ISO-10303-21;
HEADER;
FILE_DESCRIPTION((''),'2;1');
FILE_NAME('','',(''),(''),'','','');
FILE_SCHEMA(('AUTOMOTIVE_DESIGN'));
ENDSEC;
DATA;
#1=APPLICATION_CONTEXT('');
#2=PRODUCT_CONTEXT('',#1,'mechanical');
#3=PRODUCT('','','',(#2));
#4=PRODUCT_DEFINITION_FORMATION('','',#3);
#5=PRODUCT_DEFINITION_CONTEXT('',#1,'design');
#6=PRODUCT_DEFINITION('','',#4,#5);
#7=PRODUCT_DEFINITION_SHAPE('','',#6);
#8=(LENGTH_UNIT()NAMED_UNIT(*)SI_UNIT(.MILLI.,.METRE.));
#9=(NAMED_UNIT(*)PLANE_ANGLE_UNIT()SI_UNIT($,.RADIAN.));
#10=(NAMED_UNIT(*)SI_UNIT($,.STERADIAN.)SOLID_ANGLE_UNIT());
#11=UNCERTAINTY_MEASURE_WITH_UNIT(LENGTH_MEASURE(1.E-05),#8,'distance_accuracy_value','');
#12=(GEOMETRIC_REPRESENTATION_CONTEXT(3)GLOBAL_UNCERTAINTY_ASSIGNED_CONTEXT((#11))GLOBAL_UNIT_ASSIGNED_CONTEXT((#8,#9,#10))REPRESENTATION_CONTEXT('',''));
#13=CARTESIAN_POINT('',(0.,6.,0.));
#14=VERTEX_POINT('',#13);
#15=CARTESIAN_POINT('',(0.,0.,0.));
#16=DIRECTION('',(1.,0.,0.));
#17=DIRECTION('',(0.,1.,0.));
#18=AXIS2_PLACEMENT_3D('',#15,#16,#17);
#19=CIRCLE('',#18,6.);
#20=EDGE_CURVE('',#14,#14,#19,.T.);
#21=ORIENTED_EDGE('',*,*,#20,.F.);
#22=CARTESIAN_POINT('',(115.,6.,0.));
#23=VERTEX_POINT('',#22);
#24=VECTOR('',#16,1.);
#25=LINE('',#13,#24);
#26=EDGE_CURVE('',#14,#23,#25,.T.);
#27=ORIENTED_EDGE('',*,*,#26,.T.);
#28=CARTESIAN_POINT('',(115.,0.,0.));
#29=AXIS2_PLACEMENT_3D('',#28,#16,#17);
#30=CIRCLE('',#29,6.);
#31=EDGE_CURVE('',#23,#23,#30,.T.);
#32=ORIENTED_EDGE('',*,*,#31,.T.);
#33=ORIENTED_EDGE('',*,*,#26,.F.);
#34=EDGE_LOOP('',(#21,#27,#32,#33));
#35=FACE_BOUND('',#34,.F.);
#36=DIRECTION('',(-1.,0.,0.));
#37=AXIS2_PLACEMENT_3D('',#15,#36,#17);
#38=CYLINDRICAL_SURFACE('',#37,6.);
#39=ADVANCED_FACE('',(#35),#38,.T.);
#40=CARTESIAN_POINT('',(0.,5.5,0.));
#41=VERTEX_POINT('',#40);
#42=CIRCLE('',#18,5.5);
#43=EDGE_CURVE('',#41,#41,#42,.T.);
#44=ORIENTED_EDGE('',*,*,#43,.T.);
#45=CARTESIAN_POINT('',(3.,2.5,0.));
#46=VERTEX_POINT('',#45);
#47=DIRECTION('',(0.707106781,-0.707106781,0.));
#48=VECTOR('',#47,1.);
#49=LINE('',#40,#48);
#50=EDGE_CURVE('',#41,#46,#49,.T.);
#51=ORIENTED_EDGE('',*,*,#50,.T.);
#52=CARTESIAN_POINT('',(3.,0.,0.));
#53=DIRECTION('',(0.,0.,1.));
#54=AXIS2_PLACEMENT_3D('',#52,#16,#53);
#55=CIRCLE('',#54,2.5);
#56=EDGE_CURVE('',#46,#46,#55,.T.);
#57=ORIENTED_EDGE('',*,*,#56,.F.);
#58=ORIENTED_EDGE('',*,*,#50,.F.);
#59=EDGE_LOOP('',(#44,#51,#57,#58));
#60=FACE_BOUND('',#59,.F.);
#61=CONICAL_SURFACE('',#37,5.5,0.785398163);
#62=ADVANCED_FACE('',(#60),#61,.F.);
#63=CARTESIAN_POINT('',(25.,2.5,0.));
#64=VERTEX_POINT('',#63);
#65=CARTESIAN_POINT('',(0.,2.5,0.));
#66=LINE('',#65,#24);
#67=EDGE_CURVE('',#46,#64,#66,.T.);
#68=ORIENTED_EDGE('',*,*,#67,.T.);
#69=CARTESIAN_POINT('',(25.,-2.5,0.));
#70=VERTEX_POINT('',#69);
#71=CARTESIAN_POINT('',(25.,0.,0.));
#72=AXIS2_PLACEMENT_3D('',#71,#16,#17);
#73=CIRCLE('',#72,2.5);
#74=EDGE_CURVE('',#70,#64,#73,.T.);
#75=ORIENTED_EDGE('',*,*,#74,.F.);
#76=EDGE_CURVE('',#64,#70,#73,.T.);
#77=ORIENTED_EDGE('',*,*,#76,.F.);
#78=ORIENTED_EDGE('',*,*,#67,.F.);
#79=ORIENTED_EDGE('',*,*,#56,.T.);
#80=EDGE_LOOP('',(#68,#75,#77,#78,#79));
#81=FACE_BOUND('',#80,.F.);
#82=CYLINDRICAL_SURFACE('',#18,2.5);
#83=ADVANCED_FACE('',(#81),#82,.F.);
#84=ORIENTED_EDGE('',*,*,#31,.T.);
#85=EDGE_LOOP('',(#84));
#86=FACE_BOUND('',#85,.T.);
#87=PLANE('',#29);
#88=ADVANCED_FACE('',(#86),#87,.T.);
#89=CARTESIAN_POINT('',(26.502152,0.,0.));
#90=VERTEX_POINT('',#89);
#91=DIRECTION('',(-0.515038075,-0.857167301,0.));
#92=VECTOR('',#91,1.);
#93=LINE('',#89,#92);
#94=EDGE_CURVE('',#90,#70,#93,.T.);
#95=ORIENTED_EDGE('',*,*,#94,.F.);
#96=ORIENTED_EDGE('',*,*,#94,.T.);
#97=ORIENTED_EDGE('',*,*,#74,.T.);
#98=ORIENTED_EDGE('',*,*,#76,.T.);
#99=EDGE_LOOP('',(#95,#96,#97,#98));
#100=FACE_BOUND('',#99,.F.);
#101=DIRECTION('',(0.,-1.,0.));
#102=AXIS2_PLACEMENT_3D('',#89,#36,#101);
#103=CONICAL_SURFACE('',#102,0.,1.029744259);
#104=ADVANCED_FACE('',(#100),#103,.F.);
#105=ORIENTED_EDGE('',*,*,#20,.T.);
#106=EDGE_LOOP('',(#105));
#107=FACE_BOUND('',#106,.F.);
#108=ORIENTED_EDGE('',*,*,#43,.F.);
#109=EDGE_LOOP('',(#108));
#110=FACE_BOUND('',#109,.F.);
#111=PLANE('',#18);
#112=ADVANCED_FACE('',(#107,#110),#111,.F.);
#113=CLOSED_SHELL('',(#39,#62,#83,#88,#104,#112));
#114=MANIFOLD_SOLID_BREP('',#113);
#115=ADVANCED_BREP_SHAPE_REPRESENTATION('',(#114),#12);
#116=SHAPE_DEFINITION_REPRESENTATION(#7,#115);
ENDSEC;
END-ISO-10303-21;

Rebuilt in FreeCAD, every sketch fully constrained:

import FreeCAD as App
import Part
import Sketcher
Q = App.Units.Quantity

doc = App.newDocument("Part")
params = doc.addObject("Spreadsheet::Sheet", "Params")
for row, (alias, value) in enumerate([
    ("sketch1_diameter", "12 mm"),
    ("pad1_length", "115 mm"),
    ("sketch2_diameter", "5 mm"),
    ("hole_diameter", "5 mm"),
    ("hole_depth", "25 mm"),
    ("hole_csink_diameter", "11 mm"),
], start=1):
    params.set(f"A{row}", alias)
    params.set(f"B{row}", "=" + value)
    params.setAlias(f"B{row}", alias)

body = doc.addObject("PartDesign::Body", "Body")

sketch1 = body.newObject("Sketcher::SketchObject", "Sketch")
sketch1.AttachmentSupport = (doc.getObject("YZ_Plane"), [""])
sketch1.MapMode = "FlatFace"
sketch1.addGeometry(Part.Circle(App.Vector(0, 0, 0), App.Vector(0, 0, 1), 6), False)
sketch1.addConstraint([
    Sketcher.Constraint("Coincident", 0, 3, -1, 1),
    Sketcher.Constraint("Diameter", 0, Q("12 mm")),
])
sketch1.setExpression("Constraints[1]", "Params.sketch1_diameter")
pad1 = body.newObject("PartDesign::Pad", "Pad")
pad1.Profile = sketch1
pad1.setExpression("Length", "Params.pad1_length")

sketch2 = body.newObject("Sketcher::SketchObject", "Sketch001")
sketch2.AttachmentSupport = (doc.getObject("YZ_Plane"), [""])
sketch2.MapMode = "FlatFace"
sketch2.addGeometry(Part.Circle(App.Vector(0, 0, 0), App.Vector(0, 0, 1), 2.5), False)
sketch2.addConstraint([
    Sketcher.Constraint("Coincident", 0, 3, -1, 1),
    Sketcher.Constraint("Diameter", 0, Q("5 mm")),
])
sketch2.setExpression("Constraints[1]", "Params.sketch2_diameter")
doc.recompute()
hole = body.newObject("PartDesign::Hole", "Hole")
hole.Profile = sketch2
hole.ThreadType = "None"
hole.setExpression("Diameter", "Params.hole_diameter")
hole.DepthType = "Dimension"
hole.setExpression("Depth", "Params.hole_depth")
hole.DrillPoint = "Angled"
hole.DrillPointAngle = 118
hole.HoleCutType = "Countersink"
hole.setExpression("HoleCutDiameter", "Params.hole_csink_diameter")
hole.HoleCutCountersinkAngle = 90
hole.Reversed = True

doc.recompute()
